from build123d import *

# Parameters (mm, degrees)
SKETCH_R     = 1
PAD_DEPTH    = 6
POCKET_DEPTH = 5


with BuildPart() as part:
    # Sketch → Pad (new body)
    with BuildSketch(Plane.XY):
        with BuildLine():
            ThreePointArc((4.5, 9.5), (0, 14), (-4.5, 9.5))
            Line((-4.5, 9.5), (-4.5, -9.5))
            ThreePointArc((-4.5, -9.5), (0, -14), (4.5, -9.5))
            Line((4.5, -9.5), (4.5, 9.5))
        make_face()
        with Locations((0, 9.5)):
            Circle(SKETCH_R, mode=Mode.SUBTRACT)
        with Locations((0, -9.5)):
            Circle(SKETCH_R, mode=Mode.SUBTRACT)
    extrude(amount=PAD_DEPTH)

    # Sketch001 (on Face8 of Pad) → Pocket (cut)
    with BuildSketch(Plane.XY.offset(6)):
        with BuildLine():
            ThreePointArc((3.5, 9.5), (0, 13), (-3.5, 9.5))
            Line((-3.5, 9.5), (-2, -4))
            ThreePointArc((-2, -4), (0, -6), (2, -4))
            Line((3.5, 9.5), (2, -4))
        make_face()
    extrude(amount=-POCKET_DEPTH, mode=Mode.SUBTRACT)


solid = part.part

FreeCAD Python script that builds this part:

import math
import FreeCAD as App
import Part
import Sketcher
from FreeCAD import Vector

doc = App.newDocument("Part")
params = doc.addObject("Spreadsheet::Sheet", "Params")
for row, (alias, value) in enumerate([
    ("sketch1_diameter", "2 mm"),
    ("sketch1_radius", "4.5 mm"),
    ("sketch1_height", "19 mm"),
    ("pad1_length", "6 mm"),
    ("sketch2_radius", "2 mm"),
    ("sketch2_radius2", "3.5 mm"),
    ("pocket1_length", "5 mm"),
], start=1):
    params.set(f"A{row}", alias)
    params.set(f"B{row}", "=" + value)
    params.setAlias(f"B{row}", alias)

body = doc.addObject("PartDesign::Body", "Body")

# Sketch on XY plane
sketch1 = body.newObject("Sketcher::SketchObject", "Sketch")
sketch1.AttachmentSupport = (doc.getObject("XY_Plane"), [""])
sketch1.MapMode = "FlatFace"
sketch1.addGeometry(Part.ArcOfCircle(Part.Circle(Vector(0, 9.5, 0), Vector(0, 0, 1), 4.5), math.radians(0), math.radians(180)), False)
sketch1.addGeometry(Part.LineSegment(Vector(-4.5, 9.5, 0), Vector(-4.5, -9.5, 0)), False)
sketch1.addGeometry(Part.ArcOfCircle(Part.Circle(Vector(0, -9.5, 0), Vector(0, 0, 1), 4.5), math.radians(180), math.radians(360)), False)
sketch1.addGeometry(Part.LineSegment(Vector(4.5, -9.5, 0), Vector(4.5, 9.5, 0)), False)
sketch1.addGeometry(Part.Circle(Vector(0, -9.5, 0), Vector(0, 0, 1), 1), False)
sketch1.addGeometry(Part.Circle(Vector(0, 9.5, 0), Vector(0, 0, 1), 1), False)
sketch1.addConstraint(Sketcher.Constraint("Tangent", 0, 2, 1, 1))
sketch1.addConstraint(Sketcher.Constraint("Tangent", 1, 2, 2, 1))
sketch1.addConstraint(Sketcher.Constraint("Tangent", 2, 2, 3, 1))
sketch1.addConstraint(Sketcher.Constraint("Tangent", 3, 2, 0, 1))
sketch1.addConstraint(Sketcher.Constraint("Vertical", 1))
sketch1.addConstraint(Sketcher.Constraint("Vertical", 3))
sketch1.addConstraint(Sketcher.Constraint("Coincident", 4, 3, 2, 3))
sketch1.addConstraint(Sketcher.Constraint("Coincident", 5, 3, 0, 3))
sketch1.addConstraint(Sketcher.Constraint("Equal", 4, 5))
sketch1.addConstraint(Sketcher.Constraint("Symmetric", 0, 3, 2, 3, -1, 1))
sketch1.addConstraint(Sketcher.Constraint("Diameter", 4, 2.0))
sketch1.addConstraint(Sketcher.Constraint("Radius", 0, 4.5))
sketch1.addConstraint(Sketcher.Constraint("DistanceY", 1, 2, 1, 1, 19.0))
sketch1.setExpression("Constraints[10]", "Params.sketch1_diameter")
sketch1.setExpression("Constraints[11]", "Params.sketch1_radius")
sketch1.setExpression("Constraints[12]", "Params.sketch1_height")
pad1 = body.newObject("PartDesign::Pad", "Pad")
pad1.Profile = sketch1
pad1.setExpression("Length", "Params.pad1_length")

# Sketch on XY plane
sketch2 = body.newObject("Sketcher::SketchObject", "Sketch001")
sketch2.AttachmentSupport = (doc.getObject("XY_Plane"), [""])
sketch2.MapMode = "FlatFace"
sketch2.AttachmentOffset = App.Placement(Vector(0, 0, 6), App.Rotation())
sketch2.addGeometry(Part.ArcOfCircle(Part.Circle(Vector(0, 9.5, 0), Vector(0, 0, 1), 3.5), math.radians(0), math.radians(180)), False)
sketch2.addGeometry(Part.LineSegment(Vector(-3.5, 9.5, 0), Vector(-2, -4, 0)), False)
sketch2.addGeometry(Part.ArcOfCircle(Part.Circle(Vector(0, -4, 0), Vector(0, 0, 1), 2), math.radians(180), math.radians(360)), False)
sketch2.addGeometry(Part.LineSegment(Vector(2, -4, 0), Vector(3.5, 9.5, 0)), False)
sketch2.addConstraint(Sketcher.Constraint("Coincident", 0, 2, 1, 1))
sketch2.addConstraint(Sketcher.Constraint("Coincident", 1, 2, 2, 1))
sketch2.addConstraint(Sketcher.Constraint("Coincident", 2, 2, 3, 1))
sketch2.addConstraint(Sketcher.Constraint("Coincident", 3, 2, 0, 1))
sketch2.addConstraint(Sketcher.Constraint("Symmetric", 1, 2, 2, 2, -2))
sketch2.addConstraint(Sketcher.Constraint("Symmetric", 0, 2, 3, 2, -2))
sketch2.addConstraint(Sketcher.Constraint("Horizontal", 2, 3, 1, 2))
sketch2.addConstraint(Sketcher.Constraint("Radius", 2, 2.0))
sketch2.addConstraint(Sketcher.Constraint("Radius", 0, 3.5))
sketch2.addConstraint(Sketcher.Constraint("DistanceY", 2, 3, -1, 1, 4.0))
sketch2.addConstraint(Sketcher.Constraint("DistanceY", -1, 1, 0, 3, 9.5))
sketch2.addConstraint(Sketcher.Constraint("DistanceY", -1, 1, 0, 2, 9.5))
sketch2.setExpression("Constraints[7]", "Params.sketch2_radius")
sketch2.setExpression("Constraints[8]", "Params.sketch2_radius2")
pocket1 = body.newObject("PartDesign::Pocket", "Pocket")
pocket1.Profile = sketch2
pocket1.setExpression("Length", "Params.pocket1_length")

doc.recompute()
